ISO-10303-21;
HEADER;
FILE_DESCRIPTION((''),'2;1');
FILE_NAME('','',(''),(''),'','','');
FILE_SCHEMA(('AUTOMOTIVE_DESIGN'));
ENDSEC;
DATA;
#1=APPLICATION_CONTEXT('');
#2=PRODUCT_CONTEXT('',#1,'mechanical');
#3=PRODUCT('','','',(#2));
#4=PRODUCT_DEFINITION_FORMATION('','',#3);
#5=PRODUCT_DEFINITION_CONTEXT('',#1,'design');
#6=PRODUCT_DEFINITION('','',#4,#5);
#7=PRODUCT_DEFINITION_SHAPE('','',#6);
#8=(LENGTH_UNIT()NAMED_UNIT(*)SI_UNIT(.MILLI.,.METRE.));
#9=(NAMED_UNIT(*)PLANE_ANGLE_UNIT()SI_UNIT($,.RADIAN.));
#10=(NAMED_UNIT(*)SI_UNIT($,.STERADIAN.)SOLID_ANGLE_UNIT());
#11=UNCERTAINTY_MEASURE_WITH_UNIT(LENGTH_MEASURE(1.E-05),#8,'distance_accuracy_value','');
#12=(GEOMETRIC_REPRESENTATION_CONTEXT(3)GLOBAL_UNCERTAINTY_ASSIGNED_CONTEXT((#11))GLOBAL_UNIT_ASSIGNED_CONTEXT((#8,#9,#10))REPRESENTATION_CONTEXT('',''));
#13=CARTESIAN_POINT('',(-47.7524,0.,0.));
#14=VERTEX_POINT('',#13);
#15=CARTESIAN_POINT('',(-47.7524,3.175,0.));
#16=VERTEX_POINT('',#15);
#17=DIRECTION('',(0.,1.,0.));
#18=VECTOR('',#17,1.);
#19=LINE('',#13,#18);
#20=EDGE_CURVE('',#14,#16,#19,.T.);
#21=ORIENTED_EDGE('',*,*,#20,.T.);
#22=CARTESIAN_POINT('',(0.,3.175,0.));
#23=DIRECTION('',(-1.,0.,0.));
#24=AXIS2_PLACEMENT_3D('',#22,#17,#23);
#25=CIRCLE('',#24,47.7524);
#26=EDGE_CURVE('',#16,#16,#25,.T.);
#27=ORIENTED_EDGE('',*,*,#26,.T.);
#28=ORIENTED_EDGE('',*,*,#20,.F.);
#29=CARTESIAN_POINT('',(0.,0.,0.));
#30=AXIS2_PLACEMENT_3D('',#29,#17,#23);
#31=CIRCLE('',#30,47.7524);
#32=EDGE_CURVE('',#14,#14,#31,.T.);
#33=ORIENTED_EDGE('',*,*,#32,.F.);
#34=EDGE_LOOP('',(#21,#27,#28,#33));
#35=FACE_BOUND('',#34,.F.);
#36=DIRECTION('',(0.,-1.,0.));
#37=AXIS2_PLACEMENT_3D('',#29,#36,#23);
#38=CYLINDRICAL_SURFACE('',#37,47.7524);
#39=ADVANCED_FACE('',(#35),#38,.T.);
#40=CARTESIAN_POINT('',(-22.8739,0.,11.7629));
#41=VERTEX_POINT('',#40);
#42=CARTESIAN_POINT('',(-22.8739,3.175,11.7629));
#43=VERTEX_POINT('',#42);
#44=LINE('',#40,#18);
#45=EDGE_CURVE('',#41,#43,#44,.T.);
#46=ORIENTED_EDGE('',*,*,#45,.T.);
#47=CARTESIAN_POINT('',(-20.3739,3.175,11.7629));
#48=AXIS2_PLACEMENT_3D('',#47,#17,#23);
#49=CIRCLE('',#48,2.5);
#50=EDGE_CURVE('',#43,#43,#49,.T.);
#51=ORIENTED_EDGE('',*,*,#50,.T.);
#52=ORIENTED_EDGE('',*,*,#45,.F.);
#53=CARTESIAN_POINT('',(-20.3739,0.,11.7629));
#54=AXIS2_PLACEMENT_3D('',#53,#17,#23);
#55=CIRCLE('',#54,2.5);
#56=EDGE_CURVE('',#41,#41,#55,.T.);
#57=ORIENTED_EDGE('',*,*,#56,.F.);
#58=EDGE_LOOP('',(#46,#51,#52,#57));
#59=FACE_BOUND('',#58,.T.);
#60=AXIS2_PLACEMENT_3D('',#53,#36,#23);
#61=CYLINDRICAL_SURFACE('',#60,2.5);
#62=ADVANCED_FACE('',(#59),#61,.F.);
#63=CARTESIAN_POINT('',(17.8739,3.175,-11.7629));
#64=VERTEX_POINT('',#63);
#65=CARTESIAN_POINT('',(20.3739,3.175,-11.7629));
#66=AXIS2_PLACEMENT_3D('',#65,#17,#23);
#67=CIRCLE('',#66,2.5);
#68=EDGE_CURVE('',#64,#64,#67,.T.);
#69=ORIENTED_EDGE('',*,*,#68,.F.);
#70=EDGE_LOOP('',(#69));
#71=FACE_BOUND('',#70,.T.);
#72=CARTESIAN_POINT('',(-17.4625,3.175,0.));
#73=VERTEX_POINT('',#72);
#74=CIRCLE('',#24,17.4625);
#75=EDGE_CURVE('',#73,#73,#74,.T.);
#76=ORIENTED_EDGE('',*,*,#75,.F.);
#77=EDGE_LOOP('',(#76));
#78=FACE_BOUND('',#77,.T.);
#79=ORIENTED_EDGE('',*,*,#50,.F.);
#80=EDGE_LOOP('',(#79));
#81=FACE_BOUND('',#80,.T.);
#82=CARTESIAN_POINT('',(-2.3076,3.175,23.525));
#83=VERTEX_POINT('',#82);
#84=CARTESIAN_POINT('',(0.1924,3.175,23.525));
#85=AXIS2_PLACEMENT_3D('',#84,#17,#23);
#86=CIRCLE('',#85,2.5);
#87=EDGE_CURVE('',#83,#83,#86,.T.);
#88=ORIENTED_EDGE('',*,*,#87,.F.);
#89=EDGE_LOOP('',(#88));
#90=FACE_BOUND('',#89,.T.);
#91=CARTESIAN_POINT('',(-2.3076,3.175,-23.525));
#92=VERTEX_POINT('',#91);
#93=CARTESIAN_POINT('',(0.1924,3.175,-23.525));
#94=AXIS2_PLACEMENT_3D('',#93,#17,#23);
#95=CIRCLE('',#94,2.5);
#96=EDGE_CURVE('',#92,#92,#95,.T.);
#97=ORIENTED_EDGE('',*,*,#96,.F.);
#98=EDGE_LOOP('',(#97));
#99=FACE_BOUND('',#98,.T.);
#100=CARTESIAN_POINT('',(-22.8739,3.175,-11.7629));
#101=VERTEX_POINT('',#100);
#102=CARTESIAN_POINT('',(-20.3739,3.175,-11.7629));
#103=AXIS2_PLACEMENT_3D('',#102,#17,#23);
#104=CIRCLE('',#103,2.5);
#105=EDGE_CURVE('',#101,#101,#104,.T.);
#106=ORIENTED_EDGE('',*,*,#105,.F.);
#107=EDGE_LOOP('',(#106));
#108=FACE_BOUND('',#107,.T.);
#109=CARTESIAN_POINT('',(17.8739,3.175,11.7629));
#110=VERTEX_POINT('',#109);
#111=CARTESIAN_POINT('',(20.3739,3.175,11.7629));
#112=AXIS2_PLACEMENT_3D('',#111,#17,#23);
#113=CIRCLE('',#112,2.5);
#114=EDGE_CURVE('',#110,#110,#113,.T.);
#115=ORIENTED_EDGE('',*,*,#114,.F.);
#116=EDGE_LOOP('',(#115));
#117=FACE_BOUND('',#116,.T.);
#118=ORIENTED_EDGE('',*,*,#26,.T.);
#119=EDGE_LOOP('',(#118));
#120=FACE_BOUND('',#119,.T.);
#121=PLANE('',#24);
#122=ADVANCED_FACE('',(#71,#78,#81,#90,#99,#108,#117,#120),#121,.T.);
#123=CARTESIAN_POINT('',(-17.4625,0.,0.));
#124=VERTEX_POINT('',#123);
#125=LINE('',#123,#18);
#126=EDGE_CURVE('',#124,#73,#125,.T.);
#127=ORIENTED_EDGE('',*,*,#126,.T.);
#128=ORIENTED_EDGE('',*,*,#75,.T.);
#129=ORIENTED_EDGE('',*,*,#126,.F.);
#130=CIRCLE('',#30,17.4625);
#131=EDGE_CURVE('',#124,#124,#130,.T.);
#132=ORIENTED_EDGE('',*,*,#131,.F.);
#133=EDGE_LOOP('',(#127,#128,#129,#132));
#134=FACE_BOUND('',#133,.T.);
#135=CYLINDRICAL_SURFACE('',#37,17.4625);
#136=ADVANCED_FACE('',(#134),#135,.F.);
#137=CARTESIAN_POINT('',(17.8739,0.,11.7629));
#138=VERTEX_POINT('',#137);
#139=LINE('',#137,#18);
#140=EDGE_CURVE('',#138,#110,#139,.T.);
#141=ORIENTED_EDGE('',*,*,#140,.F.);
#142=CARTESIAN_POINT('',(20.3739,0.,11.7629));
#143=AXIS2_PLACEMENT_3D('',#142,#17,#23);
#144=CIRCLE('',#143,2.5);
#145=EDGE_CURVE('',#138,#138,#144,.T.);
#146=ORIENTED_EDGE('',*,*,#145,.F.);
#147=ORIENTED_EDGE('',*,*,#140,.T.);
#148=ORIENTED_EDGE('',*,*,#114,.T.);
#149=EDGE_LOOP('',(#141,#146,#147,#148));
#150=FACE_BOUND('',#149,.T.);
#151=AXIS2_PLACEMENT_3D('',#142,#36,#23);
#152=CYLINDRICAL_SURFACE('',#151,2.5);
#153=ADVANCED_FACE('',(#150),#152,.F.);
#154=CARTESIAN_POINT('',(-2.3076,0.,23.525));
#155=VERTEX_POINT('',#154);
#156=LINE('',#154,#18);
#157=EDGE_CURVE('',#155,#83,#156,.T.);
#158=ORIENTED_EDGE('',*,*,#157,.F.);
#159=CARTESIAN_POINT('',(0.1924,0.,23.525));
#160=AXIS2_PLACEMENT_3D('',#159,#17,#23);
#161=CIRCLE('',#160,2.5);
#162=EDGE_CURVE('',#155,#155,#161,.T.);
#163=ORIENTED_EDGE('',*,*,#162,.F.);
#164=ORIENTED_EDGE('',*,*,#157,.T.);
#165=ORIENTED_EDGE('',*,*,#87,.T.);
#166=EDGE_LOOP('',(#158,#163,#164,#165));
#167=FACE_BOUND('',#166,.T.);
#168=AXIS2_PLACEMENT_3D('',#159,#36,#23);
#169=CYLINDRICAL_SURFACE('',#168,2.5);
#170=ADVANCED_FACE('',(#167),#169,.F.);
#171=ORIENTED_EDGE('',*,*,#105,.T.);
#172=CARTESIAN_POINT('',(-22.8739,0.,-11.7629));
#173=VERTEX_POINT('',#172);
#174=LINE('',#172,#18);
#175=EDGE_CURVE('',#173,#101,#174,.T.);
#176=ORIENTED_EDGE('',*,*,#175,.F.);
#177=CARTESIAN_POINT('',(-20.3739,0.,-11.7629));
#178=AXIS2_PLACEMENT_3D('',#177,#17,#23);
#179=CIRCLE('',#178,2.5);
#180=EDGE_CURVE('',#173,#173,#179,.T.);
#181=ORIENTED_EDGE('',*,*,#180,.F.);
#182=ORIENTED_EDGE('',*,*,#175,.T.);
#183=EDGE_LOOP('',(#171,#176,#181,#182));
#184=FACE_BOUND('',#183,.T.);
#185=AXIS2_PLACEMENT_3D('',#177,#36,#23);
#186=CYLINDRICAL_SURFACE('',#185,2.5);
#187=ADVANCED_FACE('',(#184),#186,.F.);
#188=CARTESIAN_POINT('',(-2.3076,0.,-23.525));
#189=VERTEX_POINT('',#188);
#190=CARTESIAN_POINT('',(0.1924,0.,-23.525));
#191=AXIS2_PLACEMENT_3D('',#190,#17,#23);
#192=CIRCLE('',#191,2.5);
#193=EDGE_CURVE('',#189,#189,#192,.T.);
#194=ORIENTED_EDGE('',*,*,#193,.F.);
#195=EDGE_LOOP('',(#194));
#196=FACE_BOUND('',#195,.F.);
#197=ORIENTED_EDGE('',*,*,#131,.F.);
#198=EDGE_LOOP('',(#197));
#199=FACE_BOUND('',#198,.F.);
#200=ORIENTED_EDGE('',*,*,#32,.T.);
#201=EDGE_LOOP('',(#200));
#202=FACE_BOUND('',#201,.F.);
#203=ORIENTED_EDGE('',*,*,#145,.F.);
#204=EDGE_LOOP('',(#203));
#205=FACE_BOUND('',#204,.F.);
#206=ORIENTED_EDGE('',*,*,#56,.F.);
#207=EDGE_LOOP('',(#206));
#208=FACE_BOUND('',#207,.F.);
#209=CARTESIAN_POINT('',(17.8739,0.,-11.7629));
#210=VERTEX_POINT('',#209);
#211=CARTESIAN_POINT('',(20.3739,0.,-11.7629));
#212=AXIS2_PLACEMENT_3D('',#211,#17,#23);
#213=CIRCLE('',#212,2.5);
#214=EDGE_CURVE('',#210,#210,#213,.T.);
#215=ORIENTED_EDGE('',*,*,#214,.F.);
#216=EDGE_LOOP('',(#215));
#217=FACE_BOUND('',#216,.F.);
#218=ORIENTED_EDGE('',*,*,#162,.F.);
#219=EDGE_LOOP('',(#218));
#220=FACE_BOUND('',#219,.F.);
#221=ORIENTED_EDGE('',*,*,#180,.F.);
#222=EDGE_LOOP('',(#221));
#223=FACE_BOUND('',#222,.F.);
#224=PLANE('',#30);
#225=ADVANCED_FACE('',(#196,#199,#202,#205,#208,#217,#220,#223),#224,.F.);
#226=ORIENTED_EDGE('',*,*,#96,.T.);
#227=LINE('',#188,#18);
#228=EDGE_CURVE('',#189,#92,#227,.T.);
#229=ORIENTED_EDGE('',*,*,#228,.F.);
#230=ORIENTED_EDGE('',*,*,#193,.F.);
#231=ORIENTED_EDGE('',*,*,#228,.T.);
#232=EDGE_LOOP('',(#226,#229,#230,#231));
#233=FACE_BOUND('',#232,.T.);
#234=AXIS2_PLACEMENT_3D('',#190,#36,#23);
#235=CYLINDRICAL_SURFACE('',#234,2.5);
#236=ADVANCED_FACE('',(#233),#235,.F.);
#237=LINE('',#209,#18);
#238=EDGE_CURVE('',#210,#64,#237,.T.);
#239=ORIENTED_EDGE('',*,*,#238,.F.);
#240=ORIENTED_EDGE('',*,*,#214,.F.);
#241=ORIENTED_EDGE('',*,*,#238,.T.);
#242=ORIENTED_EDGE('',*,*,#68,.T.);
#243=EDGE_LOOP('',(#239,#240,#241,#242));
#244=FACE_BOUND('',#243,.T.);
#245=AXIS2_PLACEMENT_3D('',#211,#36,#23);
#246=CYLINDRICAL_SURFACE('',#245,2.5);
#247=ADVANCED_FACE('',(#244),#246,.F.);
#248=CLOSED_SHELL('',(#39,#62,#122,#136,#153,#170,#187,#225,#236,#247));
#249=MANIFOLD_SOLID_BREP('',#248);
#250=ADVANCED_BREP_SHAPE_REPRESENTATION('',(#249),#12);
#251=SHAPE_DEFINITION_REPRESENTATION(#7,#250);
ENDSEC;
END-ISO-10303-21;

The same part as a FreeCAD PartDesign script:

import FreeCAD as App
import Part
import Sketcher

V = App.Vector
Q = App.Units.Quantity

doc = App.newDocument("Part")
body = doc.addObject("PartDesign::Body", "Body")

sketch1 = body.newObject("Sketcher::SketchObject", "Sketch")
sketch1.AttachmentSupport = (doc.getObject("XZ_Plane"), [""])
sketch1.MapMode = "FlatFace"
sketch1.addGeometry(Part.Circle(V(0, 0, 0), V(0, 0, 1), 47.8), False)
sketch1.addGeometry(Part.Circle(V(0.2, -23.5, 0), V(0, 0, 1), 2.5), False)
sketch1.addGeometry(Part.Circle(V(20.4, -11.8, 0), V(0, 0, 1), 2.5), False)
sketch1.addGeometry(Part.Circle(V(-20.4, -11.8, 0), V(0, 0, 1), 2.5), False)
sketch1.addGeometry(Part.Circle(V(20.4, 11.8, 0), V(0, 0, 1), 2.5), False)
sketch1.addGeometry(Part.Circle(V(0.2, 23.5, 0), V(0, 0, 1), 2.5), False)
sketch1.addGeometry(Part.Circle(V(0, 0, 0), V(0, 0, 1), 17.5), False)
sketch1.addGeometry(Part.Circle(V(-20.4, 11.8, 0), V(0, 0, 1), 2.5), False)
sketch1.addConstraint(Sketcher.Constraint("Coincident", 0, 3, -1, 1))
sketch1.addConstraint(Sketcher.Constraint("Coincident", 6, 3, -1, 1))
sketch1.addConstraint(Sketcher.Constraint("Equal", 1, 2))
sketch1.addConstraint(Sketcher.Constraint("Equal", 2, 3))
sketch1.addConstraint(Sketcher.Constraint("Equal", 3, 4))
sketch1.addConstraint(Sketcher.Constraint("Equal", 4, 5))
sketch1.addConstraint(Sketcher.Constraint("Equal", 5, 7))
sketch1.addConstraint(Sketcher.Constraint("Symmetric", 3, 3, 4, 3, -1, 1))
sketch1.addConstraint(Sketcher.Constraint("Symmetric", 2, 3, 7, 3, -1, 1))
sketch1.addConstraint(Sketcher.Constraint("Symmetric", 2, 3, 3, 3, -2))
sketch1.addConstraint(Sketcher.Constraint("Symmetric", 1, 3, 5, 3, -1))
sketch1.addConstraint(Sketcher.Constraint("Diameter", 6, Q("1.375 in")))
sketch1.addConstraint(Sketcher.Constraint("Diameter", 1, 5.0))
sketch1.addConstraint(Sketcher.Constraint("Diameter", 0, 95.5048))
sketch1.addConstraint(Sketcher.Constraint("DistanceY", 2, 3, -1, 1, Q("0.4631 in")))
sketch1.addConstraint(Sketcher.Constraint("DistanceX", 3, 3, 1, 3, Q("0.8097 in")))
sketch1.addConstraint(Sketcher.Constraint("DistanceX", -1, 1, 1, 3, 0.1924))
sketch1.addConstraint(Sketcher.Constraint("DistanceY", 1, 3, -1, 1, 23.525))
pad1 = body.newObject("PartDesign::Pad", "Pad")
pad1.Profile = sketch1
pad1.Length = Q("0.125 in")
pad1.Reversed = True

doc.recompute()
